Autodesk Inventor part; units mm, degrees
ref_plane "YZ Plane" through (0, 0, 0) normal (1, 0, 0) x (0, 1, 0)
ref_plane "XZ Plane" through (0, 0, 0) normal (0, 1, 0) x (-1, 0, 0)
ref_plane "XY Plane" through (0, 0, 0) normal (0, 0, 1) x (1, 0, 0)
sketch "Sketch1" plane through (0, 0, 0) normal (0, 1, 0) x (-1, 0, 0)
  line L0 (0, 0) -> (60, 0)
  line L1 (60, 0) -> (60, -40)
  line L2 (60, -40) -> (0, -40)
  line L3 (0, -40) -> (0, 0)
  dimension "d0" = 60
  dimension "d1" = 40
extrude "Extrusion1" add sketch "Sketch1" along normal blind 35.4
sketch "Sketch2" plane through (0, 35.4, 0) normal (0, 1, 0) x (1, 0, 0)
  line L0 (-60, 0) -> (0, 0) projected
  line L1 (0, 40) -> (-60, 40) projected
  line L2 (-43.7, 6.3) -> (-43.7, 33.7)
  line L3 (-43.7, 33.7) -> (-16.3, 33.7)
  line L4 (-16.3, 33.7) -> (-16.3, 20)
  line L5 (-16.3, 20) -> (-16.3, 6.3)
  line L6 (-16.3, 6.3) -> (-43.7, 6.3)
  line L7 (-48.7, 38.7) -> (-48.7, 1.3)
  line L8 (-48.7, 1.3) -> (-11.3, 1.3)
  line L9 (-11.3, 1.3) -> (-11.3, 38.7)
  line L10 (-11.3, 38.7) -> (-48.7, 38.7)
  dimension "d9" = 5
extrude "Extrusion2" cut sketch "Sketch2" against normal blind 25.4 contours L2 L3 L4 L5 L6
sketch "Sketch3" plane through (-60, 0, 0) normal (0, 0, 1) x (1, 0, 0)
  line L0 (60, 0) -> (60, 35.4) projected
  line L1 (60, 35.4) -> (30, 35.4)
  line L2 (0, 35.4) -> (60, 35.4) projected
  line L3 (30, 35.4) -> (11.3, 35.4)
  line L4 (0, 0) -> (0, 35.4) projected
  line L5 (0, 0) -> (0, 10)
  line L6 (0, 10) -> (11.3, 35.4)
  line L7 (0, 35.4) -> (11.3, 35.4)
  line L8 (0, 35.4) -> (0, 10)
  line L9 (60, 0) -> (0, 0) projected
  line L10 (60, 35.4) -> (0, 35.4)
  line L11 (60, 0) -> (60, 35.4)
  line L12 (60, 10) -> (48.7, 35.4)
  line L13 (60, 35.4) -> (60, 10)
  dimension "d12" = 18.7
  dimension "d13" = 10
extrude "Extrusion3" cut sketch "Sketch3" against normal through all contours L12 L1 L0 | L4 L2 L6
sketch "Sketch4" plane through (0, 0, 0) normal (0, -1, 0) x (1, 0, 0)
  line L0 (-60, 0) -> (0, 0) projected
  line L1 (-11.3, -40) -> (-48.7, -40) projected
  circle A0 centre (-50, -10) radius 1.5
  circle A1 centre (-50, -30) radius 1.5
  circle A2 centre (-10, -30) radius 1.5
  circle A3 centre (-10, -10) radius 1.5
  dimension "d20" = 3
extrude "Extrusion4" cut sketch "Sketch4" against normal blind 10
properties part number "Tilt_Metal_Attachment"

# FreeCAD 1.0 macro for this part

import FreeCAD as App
import Part
import Sketcher
Q = App.Units.Quantity

doc = App.newDocument("Part")
body = doc.addObject("PartDesign::Body", "Body")

# Sketch on XZ plane
sketch1 = body.newObject("Sketcher::SketchObject", "Sketch")
sketch1.AttachmentSupport = (doc.getObject("XZ_Plane"), [""])
sketch1.MapMode = "FlatFace"
sketch1.addGeometry([
    Part.LineSegment(App.Vector(-60, 0, 0), App.Vector(0, 0, 0)),
    Part.LineSegment(App.Vector(0, 0, 0), App.Vector(0, -40, 0)),
    Part.LineSegment(App.Vector(0, -40, 0), App.Vector(-60, -40, 0)),
    Part.LineSegment(App.Vector(-60, -40, 0), App.Vector(-60, 0, 0)),
], False)
sketch1.addConstraint([
    Sketcher.Constraint("Coincident", 0, 2, 1, 1),
    Sketcher.Constraint("Coincident", 1, 2, 2, 1),
    Sketcher.Constraint("Coincident", 2, 2, 3, 1),
    Sketcher.Constraint("Coincident", 3, 2, 0, 1),
    Sketcher.Constraint("Horizontal", 0),
    Sketcher.Constraint("Vertical", 1),
    Sketcher.Constraint("Horizontal", 2),
    Sketcher.Constraint("Vertical", 3),
    Sketcher.Constraint("Coincident", 0, 2, -1, 1),
    Sketcher.Constraint("DistanceX", 0, 1, 0, 2, Q("60 mm")),
    Sketcher.Constraint("DistanceY", 1, 2, 1, 1, Q("40 mm")),
])
pad1 = body.newObject("PartDesign::Pad", "Pad")
pad1.Profile = sketch1
pad1.Length = 35.4
pad1.Reversed = True

# Sketch on XZ plane
sketch2 = body.newObject("Sketcher::SketchObject", "Sketch001")
sketch2.AttachmentSupport = (doc.getObject("XZ_Plane"), [""])
sketch2.MapMode = "FlatFace"
sketch2.AttachmentOffset = App.Placement(App.Vector(0, 0, -35.4), App.Rotation())
sketch2.addGeometry([
    Part.LineSegment(App.Vector(-44, -34, 0), App.Vector(-44, -6, 0)),
    Part.LineSegment(App.Vector(-44, -6, 0), App.Vector(-16, -6, 0)),
    Part.LineSegment(App.Vector(-16, -6, 0), App.Vector(-16, -34, 0)),
    Part.LineSegment(App.Vector(-16, -34, 0), App.Vector(-44, -34, 0)),
], False)
sketch2.addConstraint([
    Sketcher.Constraint("Coincident", 0, 2, 1, 1),
    Sketcher.Constraint("Coincident", 1, 2, 2, 1),
    Sketcher.Constraint("Coincident", 2, 2, 3, 1),
    Sketcher.Constraint("Coincident", 3, 2, 0, 1),
    Sketcher.Constraint("Vertical", 0),
    Sketcher.Constraint("Horizontal", 1),
    Sketcher.Constraint("Vertical", 2),
    Sketcher.Constraint("Horizontal", 3),
    Sketcher.Constraint("Equal", 3, 0),
    Sketcher.Constraint("DistanceX", 1, 1, 1, 2, Q("27.4 mm")),
    Sketcher.Constraint("DistanceX", 0, 2, -1, 1, Q("43.7 mm")),
    Sketcher.Constraint("DistanceY", 0, 2, -1, 1, Q("6.3 mm")),
])
pocket1 = body.newObject("PartDesign::Pocket", "Pocket")
pocket1.Profile = sketch2
pocket1.Length = 25.4
pocket1.Reversed = True

# Sketch on XY plane
sketch3 = body.newObject("Sketcher::SketchObject", "Sketch002")
sketch3.AttachmentSupport = (doc.getObject("XY_Plane"), [""])
sketch3.MapMode = "FlatFace"
sketch3.addGeometry([
    Part.LineSegment(App.Vector(-11, 35, 0), App.Vector(0, 10, 0)),  # 0
    Part.LineSegment(App.Vector(0, 10, 0), App.Vector(0, 35, 0)),  # 1
    Part.LineSegment(App.Vector(0, 35, 0), App.Vector(-11, 35, 0)),  # 2
    Part.LineSegment(App.Vector(-60, 35, 0), App.Vector(-60, 10, 0)),  # 3
    Part.LineSegment(App.Vector(-60, 10, 0), App.Vector(-49, 35, 0)),  # 4
    Part.LineSegment(App.Vector(-49, 35, 0), App.Vector(-60, 35, 0)),  # 5
], False)
sketch3.addConstraint([
    Sketcher.Constraint("Coincident", 0, 2, 1, 1),
    Sketcher.Constraint("Coincident", 1, 2, 2, 1),
    Sketcher.Constraint("Coincident", 2, 2, 0, 1),
    Sketcher.Constraint("Coincident", 3, 2, 4, 1),
    Sketcher.Constraint("Coincident", 4, 2, 5, 1),
    Sketcher.Constraint("Coincident", 5, 2, 3, 1),
    Sketcher.Constraint("Vertical", 1),
    Sketcher.Constraint("Horizontal", 2),
    Sketcher.Constraint("Vertical", 3),
    Sketcher.Constraint("Horizontal", 5),
    Sketcher.Constraint("PointOnObject", 0, 2, -2),
    Sketcher.Constraint("Horizontal", 0, 2, 3, 2),
    Sketcher.Constraint("Horizontal", 2, 2, 4, 2),
    Sketcher.Constraint("Equal", 2, 5),
    Sketcher.Constraint("DistanceY", -1, 1, 0, 2, Q("10 mm")),
    Sketcher.Constraint("DistanceX", 2, 2, 2, 1, Q("11.3 mm")),
    Sketcher.Constraint("DistanceY", 1, 1, 1, 2, Q("25.4 mm")),
    Sketcher.Constraint("DistanceX", 3, 2, -1, 1, Q("60 mm")),
])
pocket2 = body.newObject("PartDesign::Pocket", "Pocket001")
pocket2.Profile = sketch3
pocket2.Type = "ThroughAll"

# Sketch on XZ plane
sketch4 = body.newObject("Sketcher::SketchObject", "Sketch003")
sketch4.AttachmentSupport = (doc.getObject("XZ_Plane"), [""])
sketch4.MapMode = "FlatFace"
sketch4.addGeometry([
    Part.Circle(App.Vector(-50, -10, 0), App.Vector(0, 0, 1), 1.5),
    Part.Circle(App.Vector(-50, -30, 0), App.Vector(0, 0, 1), 1.5),
    Part.Circle(App.Vector(-10, -30, 0), App.Vector(0, 0, 1), 1.5),
    Part.Circle(App.Vector(-10, -10, 0), App.Vector(0, 0, 1), 1.5),
], False)
sketch4.addConstraint([
    Sketcher.Constraint("Equal", 0, 1),
    Sketcher.Constraint("Equal", 1, 2),
    Sketcher.Constraint("Equal", 2, 3),
    Sketcher.Constraint("Horizontal", 1, 3, 2, 3),
    Sketcher.Constraint("Horizontal", 0, 3, 3, 3),
    Sketcher.Constraint("Vertical", 0, 3, 1, 3),
    Sketcher.Constraint("Vertical", 2, 3, 3, 3),
    Sketcher.Constraint("Diameter", 0, Q("3 mm")),
    Sketcher.Constraint("DistanceX", 0, 3, -1, 1, Q("50 mm")),
    Sketcher.Constraint("DistanceY", 0, 3, -1, 1, Q("10 mm")),
    Sketcher.Constraint("DistanceY", 1, 3, -1, 1, Q("30 mm")),
    Sketcher.Constraint("DistanceX", 2, 3, -1, 1, Q("10 mm")),
])
pocket3 = body.newObject("PartDesign::Pocket", "Pocket002")
pocket3.Profile = sketch4
pocket3.Length = 10

doc.recompute()
